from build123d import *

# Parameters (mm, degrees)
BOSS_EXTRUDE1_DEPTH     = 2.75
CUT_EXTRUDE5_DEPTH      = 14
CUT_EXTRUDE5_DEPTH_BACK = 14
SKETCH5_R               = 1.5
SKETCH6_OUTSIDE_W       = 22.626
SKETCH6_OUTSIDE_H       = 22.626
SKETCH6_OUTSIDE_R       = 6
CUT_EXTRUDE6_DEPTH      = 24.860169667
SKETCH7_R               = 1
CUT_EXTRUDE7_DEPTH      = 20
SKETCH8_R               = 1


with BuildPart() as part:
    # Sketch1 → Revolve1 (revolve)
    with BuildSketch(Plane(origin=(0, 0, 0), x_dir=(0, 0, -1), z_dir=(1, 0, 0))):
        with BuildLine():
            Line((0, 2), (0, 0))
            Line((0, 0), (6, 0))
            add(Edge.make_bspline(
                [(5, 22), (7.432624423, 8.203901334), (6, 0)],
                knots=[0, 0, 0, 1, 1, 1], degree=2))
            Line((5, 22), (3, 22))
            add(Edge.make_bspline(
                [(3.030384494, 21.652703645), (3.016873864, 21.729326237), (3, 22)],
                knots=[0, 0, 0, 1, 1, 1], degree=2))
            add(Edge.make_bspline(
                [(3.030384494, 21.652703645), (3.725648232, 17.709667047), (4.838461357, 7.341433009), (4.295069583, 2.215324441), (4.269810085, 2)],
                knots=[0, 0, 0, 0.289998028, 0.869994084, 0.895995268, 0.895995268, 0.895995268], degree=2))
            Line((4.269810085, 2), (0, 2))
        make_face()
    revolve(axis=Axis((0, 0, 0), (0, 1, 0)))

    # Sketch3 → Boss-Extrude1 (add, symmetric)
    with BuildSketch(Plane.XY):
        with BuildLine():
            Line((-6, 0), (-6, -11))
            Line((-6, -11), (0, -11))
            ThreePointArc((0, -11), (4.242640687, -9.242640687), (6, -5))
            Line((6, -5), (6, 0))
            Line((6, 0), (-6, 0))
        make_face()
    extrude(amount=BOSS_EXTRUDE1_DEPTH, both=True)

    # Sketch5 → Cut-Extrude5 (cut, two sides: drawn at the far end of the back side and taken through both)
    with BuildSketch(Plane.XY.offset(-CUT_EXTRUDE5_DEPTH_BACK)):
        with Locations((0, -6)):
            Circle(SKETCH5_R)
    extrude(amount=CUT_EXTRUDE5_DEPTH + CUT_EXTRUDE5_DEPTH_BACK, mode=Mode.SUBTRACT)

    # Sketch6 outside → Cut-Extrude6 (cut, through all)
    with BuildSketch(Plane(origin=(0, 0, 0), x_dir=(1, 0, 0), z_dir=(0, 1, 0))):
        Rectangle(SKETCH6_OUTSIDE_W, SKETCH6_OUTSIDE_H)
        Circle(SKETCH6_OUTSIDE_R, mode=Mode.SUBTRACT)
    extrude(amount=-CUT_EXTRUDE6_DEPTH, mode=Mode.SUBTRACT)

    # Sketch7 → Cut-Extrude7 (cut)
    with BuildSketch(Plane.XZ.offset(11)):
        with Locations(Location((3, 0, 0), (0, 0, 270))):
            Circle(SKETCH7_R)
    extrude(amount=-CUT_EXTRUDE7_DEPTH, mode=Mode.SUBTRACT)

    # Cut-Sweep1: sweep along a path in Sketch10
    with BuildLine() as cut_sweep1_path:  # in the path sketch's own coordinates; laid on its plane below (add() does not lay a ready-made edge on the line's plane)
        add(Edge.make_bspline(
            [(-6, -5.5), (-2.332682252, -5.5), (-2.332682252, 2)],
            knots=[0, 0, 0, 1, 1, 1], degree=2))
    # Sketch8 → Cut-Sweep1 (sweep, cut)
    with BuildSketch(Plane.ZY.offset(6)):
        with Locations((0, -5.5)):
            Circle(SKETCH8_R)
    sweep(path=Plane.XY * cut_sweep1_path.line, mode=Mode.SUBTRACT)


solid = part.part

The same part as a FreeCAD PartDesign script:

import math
import FreeCAD as App
import Part
import Sketcher

V = App.Vector


def add_polygon(sketch, points):
    """Adds a closed chain of lines whose ends are joined by coincident constraints."""
    first, n = sketch.GeometryCount, len(points)
    for a, b in zip(points, points[1:] + points[:1]):
        sketch.addGeometry(Part.LineSegment(App.Vector(*a, 0), App.Vector(*b, 0)), False)
    for i in range(n):
        sketch.addConstraint(Sketcher.Constraint("Coincident", first + i, 2, first + (i + 1) % n, 1))

doc = App.newDocument("Part")
params = doc.addObject("Spreadsheet::Sheet", "Params")
for row, (alias, value) in enumerate([
    ("revolution_angle", "360 deg"),
    ("sketch2_radius", "6 mm"),
    ("sketch2_height", "11 mm"),
    ("pad1_length", "5.5 mm"),
    ("sketch3_diameter", "3 mm"),
    ("sketch4_diameter", "12 mm"),
    ("sketch5_diameter", "2 mm"),
    ("pocket3_length", "20 mm"),
    ("sketch6_diameter", "2 mm"),
], start=1):
    params.set(f"A{row}", alias)
    params.set(f"B{row}", "=" + value)
    params.setAlias(f"B{row}", alias)

body = doc.addObject("PartDesign::Body", "Body")

# Sketch on YZ plane
sketch1 = body.newObject("Sketcher::SketchObject", "Sketch")
sketch1.AttachmentSupport = (doc.getObject("YZ_Plane"), [""])
sketch1.MapMode = "FlatFace"
sketch1.addGeometry([
    Part.LineSegment(V(2, 0, 0), V(0, 0, 0)),  # 0
    Part.LineSegment(V(0, 0, 0), V(0, -6, 0)),  # 1
    Part.BSplineCurve([V(22, -5, 0), V(8.203901, -7.432624, 0), V(0, -6, 0)], [3, 3], [0, 1], False, 2, [1, 1, 1], False),  # 2
    Part.LineSegment(V(22, -5, 0), V(22, -3, 0)),  # 3
    Part.BSplineCurve([V(21.652704, -3.030384, 0), V(21.729326, -3.016874, 0), V(22, -3, 0)], [3, 3], [0, 1], False, 2, [1, 1, 1], False),  # 4
    Part.BSplineCurve([V(21.652704, -3.030384, 0), V(17.709667, -3.725648, 0), V(7.341433, -4.838461, 0), V(2.215324, -4.29507, 0), V(2, -4.26981, 0)], [3, 1, 1, 3], [0, 0.289998028, 0.869994084, 0.895995268], False, 2, [1, 1, 1, 1, 1], False),  # 5
    Part.LineSegment(V(2, -4.26981, 0), V(2, 0, 0)),  # 6
], False)
sketch1.addConstraint([
    Sketcher.Constraint("Block", 2),
    Sketcher.Constraint("Block", 4),
    Sketcher.Constraint("Block", 5),
    Sketcher.Constraint("Coincident", 0, 2, 1, 1),
    Sketcher.Constraint("Coincident", 1, 2, 2, 2),
    Sketcher.Constraint("Coincident", 2, 1, 3, 1),
    Sketcher.Constraint("Coincident", 3, 2, 4, 2),
    Sketcher.Constraint("Coincident", 5, 2, 6, 1),
    Sketcher.Constraint("Coincident", 6, 2, 0, 1),
    Sketcher.Constraint("Horizontal", 0),
    Sketcher.Constraint("Vertical", 1),
    Sketcher.Constraint("Vertical", 6),
    Sketcher.Constraint("PointOnObject", 6, 2, -1),
])
revolution = body.newObject("PartDesign::Revolution", "Revolution")
revolution.Profile = sketch1
revolution.ReferenceAxis = (sketch1, ["H_Axis"])
revolution.setExpression("Angle", "Params.revolution_angle")

# Sketch on XY plane
sketch2 = body.newObject("Sketcher::SketchObject", "Sketch001")
sketch2.AttachmentSupport = (doc.getObject("XY_Plane"), [""])
sketch2.MapMode = "FlatFace"
sketch2.addGeometry([
    Part.LineSegment(V(-6, 0, 0), V(-6, -11, 0)),  # 0
    Part.LineSegment(V(-6, -11, 0), V(0, -11, 0)),  # 1
    Part.ArcOfCircle(Part.Circle(V(0, -5, 0), V(0, 0, 1), 6), math.radians(-90), math.radians(0)),  # 2
    Part.LineSegment(V(6, -5, 0), V(6, 0, 0)),  # 3
    Part.LineSegment(V(6, 0, 0), V(-6, 0, 0)),  # 4
], False)
sketch2.addConstraint([
    Sketcher.Constraint("Coincident", 0, 2, 1, 1),
    Sketcher.Constraint("Tangent", 1, 2, 2, 1),
    Sketcher.Constraint("Tangent", 2, 2, 3, 1),
    Sketcher.Constraint("Coincident", 3, 2, 4, 1),
    Sketcher.Constraint("Coincident", 4, 2, 0, 1),
    Sketcher.Constraint("Vertical", 0),
    Sketcher.Constraint("Horizontal", 1),
    Sketcher.Constraint("Vertical", 3),
    Sketcher.Constraint("Horizontal", 4),
    Sketcher.Constraint("Symmetric", 3, 2, 4, 2, -1, 1),
    Sketcher.Constraint("PointOnObject", 2, 3, -2),
    Sketcher.Constraint("Radius", 2, 6.0),
    Sketcher.Constraint("DistanceY", 0, 2, 0, 1, 11.0),
])
sketch2.setExpression("Constraints[11]", "Params.sketch2_radius")
sketch2.setExpression("Constraints[12]", "Params.sketch2_height")
pad1 = body.newObject("PartDesign::Pad", "Pad")
pad1.Profile = sketch2
pad1.setExpression("Length", "Params.pad1_length")
pad1.Midplane = True

# Sketch on XY plane
sketch3 = body.newObject("Sketcher::SketchObject", "Sketch002")
sketch3.AttachmentSupport = (doc.getObject("XY_Plane"), [""])
sketch3.MapMode = "FlatFace"
sketch3.addGeometry(Part.Circle(V(0, -6, 0), V(0, 0, 1), 1.5), False)
sketch3.addConstraint([
    Sketcher.Constraint("PointOnObject", 0, 3, -2),
    Sketcher.Constraint("Diameter", 0, 3.0),
    Sketcher.Constraint("DistanceY", 0, 3, -1, 1, 6.0),
])
sketch3.setExpression("Constraints[1]", "Params.sketch3_diameter")
pocket1 = body.newObject("PartDesign::Pocket", "Pocket")
pocket1.Profile = sketch3
pocket1.Type = "ThroughAll"
pocket1.Midplane = True

# Sketch on XZ plane
sketch4 = body.newObject("Sketcher::SketchObject", "Sketch003")
sketch4.AttachmentSupport = (doc.getObject("XZ_Plane"), [""])
sketch4.MapMode = "FlatFace"
add_polygon(sketch4, [(-11, -11), (-11, 11), (11, 11), (11, -11)])  # lines 0-3
sketch4.addGeometry(Part.Circle(V(0, 0, 0), V(0, 0, 1), 6), False)  # 4
sketch4.addConstraint([
    Sketcher.Constraint("Vertical", 0),
    Sketcher.Constraint("Horizontal", 1),
    Sketcher.Constraint("Vertical", 2),
    Sketcher.Constraint("Horizontal", 3),
    Sketcher.Constraint("Coincident", 4, 3, -1, 1),
    Sketcher.Constraint("Symmetric", 0, 2, 2, 2, -1, 1),
    Sketcher.Constraint("Equal", 3, 0),
    Sketcher.Constraint("Diameter", 4, 12.0),
    Sketcher.Constraint("DistanceX", 1, 1, 1, 2, 22.626),
])
sketch4.setExpression("Constraints[11]", "Params.sketch4_diameter")
pocket2 = body.newObject("PartDesign::Pocket", "Pocket001")
pocket2.Profile = sketch4
pocket2.Type = "ThroughAll"
pocket2.Reversed = True

# Sketch on XZ plane
sketch5 = body.newObject("Sketcher::SketchObject", "Sketch004")
sketch5.AttachmentSupport = (doc.getObject("XZ_Plane"), [""])
sketch5.MapMode = "FlatFace"
sketch5.AttachmentOffset = App.Placement(V(0, 0, 11), App.Rotation())
sketch5.addGeometry(Part.Circle(V(3, 0, 0), V(0, 0, 1), 1), False)
sketch5.addConstraint([
    Sketcher.Constraint("PointOnObject", 0, 3, -1),
    Sketcher.Constraint("Diameter", 0, 2.0),
    Sketcher.Constraint("DistanceX", -1, 1, 0, 3, 3.0),
])
sketch5.setExpression("Constraints[1]", "Params.sketch5_diameter")
pocket3 = body.newObject("PartDesign::Pocket", "Pocket002")
pocket3.Profile = sketch5
pocket3.setExpression("Length", "Params.pocket3_length")

# Sketch on YZ plane
sketch6 = body.newObject("Sketcher::SketchObject", "Sketch005")
sketch6.AttachmentSupport = (doc.getObject("YZ_Plane"), [""])
sketch6.MapMode = "FlatFace"
sketch6.AttachmentOffset = App.Placement(V(0, 0, -6), App.Rotation())
sketch6.addGeometry(Part.Circle(V(-5.5, 0, 0), V(0, 0, 1), 1), False)
sketch6.addConstraint([
    Sketcher.Constraint("PointOnObject", 0, 3, -1),
    Sketcher.Constraint("Diameter", 0, 2.0),
    Sketcher.Constraint("DistanceX", 0, 3, -1, 1, 5.5),
])
sketch6.setExpression("Constraints[1]", "Params.sketch6_diameter")

# Sketch on XY plane
sketch7 = body.newObject("Sketcher::SketchObject", "Sketch006")
sketch7.AttachmentSupport = (doc.getObject("XY_Plane"), [""])
sketch7.MapMode = "FlatFace"
sketch7.addGeometry(Part.BSplineCurve([V(-6, -5.5, 0), V(-2.332682, -5.5, 0), V(-2.332682, 2, 0)], [3, 3], [0, 1], False, 2, [1, 1, 1], False), False)
sketch7.addConstraint(Sketcher.Constraint("Block", 0))
doc.recompute()

subtractivepipe = body.newObject("PartDesign::SubtractivePipe", "SubtractivePipe")
subtractivepipe.Profile = sketch6
subtractivepipe.Spine = (sketch7, ["Edge1"])

doc.recompute()
